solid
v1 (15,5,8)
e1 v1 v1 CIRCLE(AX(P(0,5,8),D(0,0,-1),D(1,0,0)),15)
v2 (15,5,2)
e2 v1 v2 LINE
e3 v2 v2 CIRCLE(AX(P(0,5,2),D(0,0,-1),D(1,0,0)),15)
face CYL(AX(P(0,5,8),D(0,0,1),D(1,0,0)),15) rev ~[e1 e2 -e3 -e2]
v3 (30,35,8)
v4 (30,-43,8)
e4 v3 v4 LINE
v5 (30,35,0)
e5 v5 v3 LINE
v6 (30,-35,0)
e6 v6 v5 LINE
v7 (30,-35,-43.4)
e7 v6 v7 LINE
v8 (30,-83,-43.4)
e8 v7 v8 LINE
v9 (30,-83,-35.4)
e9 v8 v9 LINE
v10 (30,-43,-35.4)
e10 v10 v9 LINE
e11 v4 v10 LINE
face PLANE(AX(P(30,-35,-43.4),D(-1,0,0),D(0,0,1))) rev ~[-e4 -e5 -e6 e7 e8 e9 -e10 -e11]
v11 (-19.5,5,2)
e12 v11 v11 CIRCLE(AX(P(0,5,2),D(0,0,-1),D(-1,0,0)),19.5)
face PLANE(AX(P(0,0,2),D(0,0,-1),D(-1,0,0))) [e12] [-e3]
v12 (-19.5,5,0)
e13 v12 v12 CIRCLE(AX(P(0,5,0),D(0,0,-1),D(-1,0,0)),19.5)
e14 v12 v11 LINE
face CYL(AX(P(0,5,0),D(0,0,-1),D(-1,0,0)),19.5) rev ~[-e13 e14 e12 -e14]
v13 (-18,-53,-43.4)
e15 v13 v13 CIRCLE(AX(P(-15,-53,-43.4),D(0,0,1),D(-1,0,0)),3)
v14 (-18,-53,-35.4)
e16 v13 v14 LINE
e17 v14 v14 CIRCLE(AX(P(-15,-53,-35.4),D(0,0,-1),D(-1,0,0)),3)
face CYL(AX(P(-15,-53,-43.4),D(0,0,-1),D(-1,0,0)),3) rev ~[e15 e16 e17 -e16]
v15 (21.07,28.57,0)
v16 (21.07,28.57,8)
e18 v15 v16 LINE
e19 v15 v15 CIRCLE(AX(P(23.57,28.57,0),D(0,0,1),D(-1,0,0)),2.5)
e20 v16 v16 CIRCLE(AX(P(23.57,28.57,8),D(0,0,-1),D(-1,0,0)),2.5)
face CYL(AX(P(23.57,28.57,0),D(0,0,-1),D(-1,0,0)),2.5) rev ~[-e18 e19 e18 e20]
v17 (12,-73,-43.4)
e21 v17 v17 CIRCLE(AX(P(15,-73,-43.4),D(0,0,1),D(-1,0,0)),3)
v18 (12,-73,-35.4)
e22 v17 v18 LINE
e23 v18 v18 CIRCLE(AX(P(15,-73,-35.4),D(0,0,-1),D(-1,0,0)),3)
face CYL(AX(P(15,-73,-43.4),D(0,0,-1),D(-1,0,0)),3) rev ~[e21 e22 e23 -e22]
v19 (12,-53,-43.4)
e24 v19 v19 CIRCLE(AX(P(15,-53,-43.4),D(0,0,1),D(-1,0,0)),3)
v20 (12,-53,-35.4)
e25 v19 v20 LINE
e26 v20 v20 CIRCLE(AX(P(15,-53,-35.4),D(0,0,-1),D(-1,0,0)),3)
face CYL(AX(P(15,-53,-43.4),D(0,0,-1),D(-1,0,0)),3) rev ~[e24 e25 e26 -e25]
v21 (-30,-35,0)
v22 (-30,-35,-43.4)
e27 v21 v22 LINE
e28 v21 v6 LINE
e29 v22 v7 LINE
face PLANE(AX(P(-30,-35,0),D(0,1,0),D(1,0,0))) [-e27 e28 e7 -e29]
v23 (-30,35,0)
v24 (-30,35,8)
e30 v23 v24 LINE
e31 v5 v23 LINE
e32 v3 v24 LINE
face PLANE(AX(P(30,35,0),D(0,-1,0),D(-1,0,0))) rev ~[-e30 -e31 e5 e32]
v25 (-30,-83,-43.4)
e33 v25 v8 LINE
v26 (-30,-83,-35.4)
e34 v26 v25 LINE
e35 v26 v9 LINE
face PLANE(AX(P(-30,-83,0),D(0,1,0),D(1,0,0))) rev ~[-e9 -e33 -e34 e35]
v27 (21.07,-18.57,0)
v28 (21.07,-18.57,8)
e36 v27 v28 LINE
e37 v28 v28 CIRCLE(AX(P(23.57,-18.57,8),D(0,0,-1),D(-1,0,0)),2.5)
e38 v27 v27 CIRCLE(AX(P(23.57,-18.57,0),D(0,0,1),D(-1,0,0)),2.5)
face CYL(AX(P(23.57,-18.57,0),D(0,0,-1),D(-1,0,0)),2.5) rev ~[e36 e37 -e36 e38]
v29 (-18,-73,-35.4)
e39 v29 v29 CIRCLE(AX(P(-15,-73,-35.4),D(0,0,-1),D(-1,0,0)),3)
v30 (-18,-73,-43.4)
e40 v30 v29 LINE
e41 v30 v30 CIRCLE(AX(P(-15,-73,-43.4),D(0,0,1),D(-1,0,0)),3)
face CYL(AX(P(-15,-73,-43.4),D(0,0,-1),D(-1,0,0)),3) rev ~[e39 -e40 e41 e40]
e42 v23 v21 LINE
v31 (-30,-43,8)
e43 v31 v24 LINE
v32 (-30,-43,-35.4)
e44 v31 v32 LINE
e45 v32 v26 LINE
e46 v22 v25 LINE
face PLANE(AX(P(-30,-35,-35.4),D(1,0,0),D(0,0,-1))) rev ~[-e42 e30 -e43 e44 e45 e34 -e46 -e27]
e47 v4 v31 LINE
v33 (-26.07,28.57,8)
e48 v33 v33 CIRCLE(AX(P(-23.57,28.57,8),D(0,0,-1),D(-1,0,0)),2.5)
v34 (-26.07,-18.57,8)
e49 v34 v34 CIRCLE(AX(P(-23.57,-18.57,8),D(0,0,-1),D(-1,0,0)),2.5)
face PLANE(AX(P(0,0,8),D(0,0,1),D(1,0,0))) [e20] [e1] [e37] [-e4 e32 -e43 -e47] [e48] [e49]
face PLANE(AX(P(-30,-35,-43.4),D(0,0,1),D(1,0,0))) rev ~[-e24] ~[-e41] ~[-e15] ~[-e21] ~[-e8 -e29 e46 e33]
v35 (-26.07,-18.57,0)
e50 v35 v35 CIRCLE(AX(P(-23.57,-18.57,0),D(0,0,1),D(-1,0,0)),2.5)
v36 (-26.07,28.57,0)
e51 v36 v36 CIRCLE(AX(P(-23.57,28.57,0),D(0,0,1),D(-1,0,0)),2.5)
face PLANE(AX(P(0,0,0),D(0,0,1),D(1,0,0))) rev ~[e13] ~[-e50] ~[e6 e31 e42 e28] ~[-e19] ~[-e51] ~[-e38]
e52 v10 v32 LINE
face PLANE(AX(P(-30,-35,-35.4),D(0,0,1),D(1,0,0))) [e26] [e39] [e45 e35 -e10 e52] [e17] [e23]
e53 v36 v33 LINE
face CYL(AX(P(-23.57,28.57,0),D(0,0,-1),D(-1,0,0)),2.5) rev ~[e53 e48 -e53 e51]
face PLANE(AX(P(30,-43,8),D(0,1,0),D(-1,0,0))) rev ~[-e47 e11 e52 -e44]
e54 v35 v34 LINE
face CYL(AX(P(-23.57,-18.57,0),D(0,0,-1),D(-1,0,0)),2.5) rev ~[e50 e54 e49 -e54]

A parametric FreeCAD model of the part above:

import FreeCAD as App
import Part
import Sketcher

V = App.Vector
Q = App.Units.Quantity


def add_polygon(sketch, points):
    """Adds a closed chain of lines whose ends are joined by coincident constraints."""
    first, n = sketch.GeometryCount, len(points)
    for a, b in zip(points, points[1:] + points[:1]):
        sketch.addGeometry(Part.LineSegment(App.Vector(*a, 0), App.Vector(*b, 0)), False)
    for i in range(n):
        sketch.addConstraint(Sketcher.Constraint("Coincident", first + i, 2, first + (i + 1) % n, 1))

doc = App.newDocument("Part")
body = doc.addObject("PartDesign::Body", "Body")

# Sketch on XY plane
sketch1 = doc.addObject("Sketcher::SketchObject", "Sketch")
body.addObject(sketch1)
sketch1.AttachmentSupport = (doc.XY_Plane, [""])
sketch1.MapMode = "FlatFace"
add_polygon(sketch1, [(-30, 35), (-30, -35), (30, -35), (30, 35)])  # lines 0-3
sketch1.addConstraint(Sketcher.Constraint("Vertical", 0))
sketch1.addConstraint(Sketcher.Constraint("Horizontal", 1))
sketch1.addConstraint(Sketcher.Constraint("Vertical", 2))
sketch1.addConstraint(Sketcher.Constraint("Horizontal", 3))
sketch1.addConstraint(Sketcher.Constraint("Symmetric", 0, 2, 2, 2, -1, 1))
sketch1.addConstraint(Sketcher.Constraint("DistanceX", 1, 1, 1, 2, Q("60 mm")))
sketch1.addConstraint(Sketcher.Constraint("DistanceY", 0, 2, 0, 1, Q("70 mm")))
pad1 = doc.addObject("PartDesign::Pad", "Pad")
body.addObject(pad1)
pad1.Profile = sketch1
pad1.Length = 8

# Sketch on XY plane
sketch2 = doc.addObject("Sketcher::SketchObject", "Sketch001")
body.addObject(sketch2)
sketch2.AttachmentSupport = (doc.XY_Plane, [""])
sketch2.MapMode = "FlatFace"
sketch2.addGeometry(Part.Circle(V(-23.6, 28.6, 0), V(0, 0, 1), 2.5), False)
sketch2.addGeometry(Part.Circle(V(-23.6, -18.6, 0), V(0, 0, 1), 2.5), False)
sketch2.addGeometry(Part.Circle(V(23.6, 28.6, 0), V(0, 0, 1), 2.5), False)
sketch2.addGeometry(Part.Circle(V(23.6, -18.6, 0), V(0, 0, 1), 2.5), False)
sketch2.addConstraint(Sketcher.Constraint("Equal", 0, 1))
sketch2.addConstraint(Sketcher.Constraint("Equal", 1, 2))
sketch2.addConstraint(Sketcher.Constraint("Equal", 2, 3))
sketch2.addConstraint(Sketcher.Constraint("Symmetric", 0, 3, 2, 3, -2))
sketch2.addConstraint(Sketcher.Constraint("Symmetric", 1, 3, 3, 3, -2))
sketch2.addConstraint(Sketcher.Constraint("Vertical", 0, 3, 1, 3))
sketch2.addConstraint(Sketcher.Constraint("Diameter", 0, Q("5 mm")))
sketch2.addConstraint(Sketcher.Constraint("DistanceY", 1, 3, 0, 3, Q("47.14 mm")))
sketch2.addConstraint(Sketcher.Constraint("DistanceX", 0, 3, 2, 3, Q("47.14 mm")))
sketch2.addConstraint(Sketcher.Constraint("DistanceY", -1, 1, 0, 3, Q("28.57 mm")))
pocket1 = doc.addObject("PartDesign::Pocket", "Pocket")
body.addObject(pocket1)
pocket1.Profile = sketch2
pocket1.Type = "UpToFirst"
pocket1.Reversed = True

# Sketch on XY plane
sketch3 = doc.addObject("Sketcher::SketchObject", "Sketch002")
body.addObject(sketch3)
sketch3.AttachmentSupport = (doc.XY_Plane, [""])
sketch3.MapMode = "FlatFace"
sketch3.AttachmentOffset = App.Placement(V(0, 0, 8), App.Rotation())
add_polygon(sketch3, [(30, -35), (-30, -35), (-30, -43), (30, -43)])  # lines 0-3
sketch3.addConstraint(Sketcher.Constraint("Horizontal", 0))
sketch3.addConstraint(Sketcher.Constraint("Vertical", 1))
sketch3.addConstraint(Sketcher.Constraint("Horizontal", 2))
sketch3.addConstraint(Sketcher.Constraint("Vertical", 3))
sketch3.addConstraint(Sketcher.Constraint("DistanceY", 1, 2, 1, 1, Q("8 mm")))
sketch3.addConstraint(Sketcher.Constraint("DistanceX", 0, 2, 0, 1, Q("60 mm")))
sketch3.addConstraint(Sketcher.Constraint("DistanceX", 0, 2, -1, 1, Q("30 mm")))
sketch3.addConstraint(Sketcher.Constraint("DistanceY", 0, 2, -1, 1, Q("35 mm")))
pad2 = doc.addObject("PartDesign::Pad", "Pad001")
body.addObject(pad2)
pad2.Profile = sketch3
pad2.Length = 43.4
pad2.Reversed = True

# Sketch on XY plane
sketch4 = doc.addObject("Sketcher::SketchObject", "Sketch003")
body.addObject(sketch4)
sketch4.AttachmentSupport = (doc.XY_Plane, [""])
sketch4.MapMode = "FlatFace"
sketch4.AttachmentOffset = App.Placement(V(0, 0, 8), App.Rotation())
sketch4.addGeometry(Part.Circle(V(0, 5, 0), V(0, 0, 1), 15), False)
sketch4.addConstraint(Sketcher.Constraint("PointOnObject", 0, 3, -2))
sketch4.addConstraint(Sketcher.Constraint("Diameter", 0, Q("30 mm")))
sketch4.addConstraint(Sketcher.Constraint("DistanceY", -1, 1, 0, 3, Q("5 mm")))
pocket2 = doc.addObject("PartDesign::Pocket", "Pocket001")
body.addObject(pocket2)
pocket2.Profile = sketch4
pocket2.Type = "UpToFirst"

# Sketch on XZ plane
sketch5 = doc.addObject("Sketcher::SketchObject", "Sketch004")
body.addObject(sketch5)
sketch5.AttachmentSupport = (doc.XZ_Plane, [""])
sketch5.MapMode = "FlatFace"
sketch5.AttachmentOffset = App.Placement(V(0, 0, 35), App.Rotation())
add_polygon(sketch5, [(-30, -43), (-30, -35), (30, -35), (30, -43)])  # lines 0-3
sketch5.addConstraint(Sketcher.Constraint("Vertical", 0))
sketch5.addConstraint(Sketcher.Constraint("Horizontal", 1))
sketch5.addConstraint(Sketcher.Constraint("Vertical", 2))
sketch5.addConstraint(Sketcher.Constraint("Horizontal", 3))
sketch5.addConstraint(Sketcher.Constraint("DistanceY", 0, 1, 0, 2, Q("8 mm")))
sketch5.addConstraint(Sketcher.Constraint("DistanceX", 1, 1, 1, 2, Q("60 mm")))
sketch5.addConstraint(Sketcher.Constraint("DistanceX", 0, 2, -1, 1, Q("30 mm")))
sketch5.addConstraint(Sketcher.Constraint("DistanceY", 0, 2, -1, 1, Q("35.4 mm")))
pad3 = doc.addObject("PartDesign::Pad", "Pad002")
body.addObject(pad3)
pad3.Profile = sketch5
pad3.Length = 48

# Sketch on XY plane
sketch6 = doc.addObject("Sketcher::SketchObject", "Sketch005")
body.addObject(sketch6)
sketch6.AttachmentSupport = (doc.XY_Plane, [""])
sketch6.MapMode = "FlatFace"
sketch6.AttachmentOffset = App.Placement(V(0, 0, -43.4), App.Rotation())
sketch6.addGeometry(Part.Circle(V(15, -53, 0), V(0, 0, 1), 3), False)
sketch6.addGeometry(Part.Circle(V(-15, -53, 0), V(0, 0, 1), 3), False)
sketch6.addGeometry(Part.Circle(V(15, -73, 0), V(0, 0, 1), 3), False)
sketch6.addGeometry(Part.Circle(V(-15, -73, 0), V(0, 0, 1), 3), False)
sketch6.addConstraint(Sketcher.Constraint("Equal", 0, 1))
sketch6.addConstraint(Sketcher.Constraint("Equal", 1, 2))
sketch6.addConstraint(Sketcher.Constraint("Equal", 2, 3))
sketch6.addConstraint(Sketcher.Constraint("Symmetric", 0, 3, 1, 3, -2))
sketch6.addConstraint(Sketcher.Constraint("Symmetric", 2, 3, 3, 3, -2))
sketch6.addConstraint(Sketcher.Constraint("Vertical", 0, 3, 2, 3))
sketch6.addConstraint(Sketcher.Constraint("Diameter", 0, Q("6 mm")))
sketch6.addConstraint(Sketcher.Constraint("DistanceX", -1, 1, 0, 3, Q("15 mm")))
sketch6.addConstraint(Sketcher.Constraint("DistanceY", 2, 3, 0, 3, Q("20 mm")))
sketch6.addConstraint(Sketcher.Constraint("DistanceY", 0, 3, -1, 1, Q("53 mm")))
pocket3 = doc.addObject("PartDesign::Pocket", "Pocket002")
body.addObject(pocket3)
pocket3.Profile = sketch6
pocket3.Type = "UpToFirst"
pocket3.Reversed = True

# Sketch on XY plane
sketch7 = doc.addObject("Sketcher::SketchObject", "Sketch006")
body.addObject(sketch7)
sketch7.AttachmentSupport = (doc.XY_Plane, [""])
sketch7.MapMode = "FlatFace"
sketch7.addGeometry(Part.Circle(V(0, 5, 0), V(0, 0, 1), 20), False)
sketch7.addGeometry(Part.Circle(V(0, 5, 0), V(0, 0, 1), 15), False)
sketch7.addConstraint(Sketcher.Constraint("Coincident", 1, 3, 0, 3))
sketch7.addConstraint(Sketcher.Constraint("PointOnObject", 0, 3, -2))
sketch7.addConstraint(Sketcher.Constraint("Diameter", 0, Q("39 mm")))
sketch7.addConstraint(Sketcher.Constraint("Diameter", 1, Q("30 mm")))
sketch7.addConstraint(Sketcher.Constraint("DistanceY", -1, 1, 0, 3, Q("5 mm")))
pocket4 = doc.addObject("PartDesign::Pocket", "Pocket003")
body.addObject(pocket4)
pocket4.Profile = sketch7
pocket4.Length = 2
pocket4.Reversed = True

doc.recompute()
